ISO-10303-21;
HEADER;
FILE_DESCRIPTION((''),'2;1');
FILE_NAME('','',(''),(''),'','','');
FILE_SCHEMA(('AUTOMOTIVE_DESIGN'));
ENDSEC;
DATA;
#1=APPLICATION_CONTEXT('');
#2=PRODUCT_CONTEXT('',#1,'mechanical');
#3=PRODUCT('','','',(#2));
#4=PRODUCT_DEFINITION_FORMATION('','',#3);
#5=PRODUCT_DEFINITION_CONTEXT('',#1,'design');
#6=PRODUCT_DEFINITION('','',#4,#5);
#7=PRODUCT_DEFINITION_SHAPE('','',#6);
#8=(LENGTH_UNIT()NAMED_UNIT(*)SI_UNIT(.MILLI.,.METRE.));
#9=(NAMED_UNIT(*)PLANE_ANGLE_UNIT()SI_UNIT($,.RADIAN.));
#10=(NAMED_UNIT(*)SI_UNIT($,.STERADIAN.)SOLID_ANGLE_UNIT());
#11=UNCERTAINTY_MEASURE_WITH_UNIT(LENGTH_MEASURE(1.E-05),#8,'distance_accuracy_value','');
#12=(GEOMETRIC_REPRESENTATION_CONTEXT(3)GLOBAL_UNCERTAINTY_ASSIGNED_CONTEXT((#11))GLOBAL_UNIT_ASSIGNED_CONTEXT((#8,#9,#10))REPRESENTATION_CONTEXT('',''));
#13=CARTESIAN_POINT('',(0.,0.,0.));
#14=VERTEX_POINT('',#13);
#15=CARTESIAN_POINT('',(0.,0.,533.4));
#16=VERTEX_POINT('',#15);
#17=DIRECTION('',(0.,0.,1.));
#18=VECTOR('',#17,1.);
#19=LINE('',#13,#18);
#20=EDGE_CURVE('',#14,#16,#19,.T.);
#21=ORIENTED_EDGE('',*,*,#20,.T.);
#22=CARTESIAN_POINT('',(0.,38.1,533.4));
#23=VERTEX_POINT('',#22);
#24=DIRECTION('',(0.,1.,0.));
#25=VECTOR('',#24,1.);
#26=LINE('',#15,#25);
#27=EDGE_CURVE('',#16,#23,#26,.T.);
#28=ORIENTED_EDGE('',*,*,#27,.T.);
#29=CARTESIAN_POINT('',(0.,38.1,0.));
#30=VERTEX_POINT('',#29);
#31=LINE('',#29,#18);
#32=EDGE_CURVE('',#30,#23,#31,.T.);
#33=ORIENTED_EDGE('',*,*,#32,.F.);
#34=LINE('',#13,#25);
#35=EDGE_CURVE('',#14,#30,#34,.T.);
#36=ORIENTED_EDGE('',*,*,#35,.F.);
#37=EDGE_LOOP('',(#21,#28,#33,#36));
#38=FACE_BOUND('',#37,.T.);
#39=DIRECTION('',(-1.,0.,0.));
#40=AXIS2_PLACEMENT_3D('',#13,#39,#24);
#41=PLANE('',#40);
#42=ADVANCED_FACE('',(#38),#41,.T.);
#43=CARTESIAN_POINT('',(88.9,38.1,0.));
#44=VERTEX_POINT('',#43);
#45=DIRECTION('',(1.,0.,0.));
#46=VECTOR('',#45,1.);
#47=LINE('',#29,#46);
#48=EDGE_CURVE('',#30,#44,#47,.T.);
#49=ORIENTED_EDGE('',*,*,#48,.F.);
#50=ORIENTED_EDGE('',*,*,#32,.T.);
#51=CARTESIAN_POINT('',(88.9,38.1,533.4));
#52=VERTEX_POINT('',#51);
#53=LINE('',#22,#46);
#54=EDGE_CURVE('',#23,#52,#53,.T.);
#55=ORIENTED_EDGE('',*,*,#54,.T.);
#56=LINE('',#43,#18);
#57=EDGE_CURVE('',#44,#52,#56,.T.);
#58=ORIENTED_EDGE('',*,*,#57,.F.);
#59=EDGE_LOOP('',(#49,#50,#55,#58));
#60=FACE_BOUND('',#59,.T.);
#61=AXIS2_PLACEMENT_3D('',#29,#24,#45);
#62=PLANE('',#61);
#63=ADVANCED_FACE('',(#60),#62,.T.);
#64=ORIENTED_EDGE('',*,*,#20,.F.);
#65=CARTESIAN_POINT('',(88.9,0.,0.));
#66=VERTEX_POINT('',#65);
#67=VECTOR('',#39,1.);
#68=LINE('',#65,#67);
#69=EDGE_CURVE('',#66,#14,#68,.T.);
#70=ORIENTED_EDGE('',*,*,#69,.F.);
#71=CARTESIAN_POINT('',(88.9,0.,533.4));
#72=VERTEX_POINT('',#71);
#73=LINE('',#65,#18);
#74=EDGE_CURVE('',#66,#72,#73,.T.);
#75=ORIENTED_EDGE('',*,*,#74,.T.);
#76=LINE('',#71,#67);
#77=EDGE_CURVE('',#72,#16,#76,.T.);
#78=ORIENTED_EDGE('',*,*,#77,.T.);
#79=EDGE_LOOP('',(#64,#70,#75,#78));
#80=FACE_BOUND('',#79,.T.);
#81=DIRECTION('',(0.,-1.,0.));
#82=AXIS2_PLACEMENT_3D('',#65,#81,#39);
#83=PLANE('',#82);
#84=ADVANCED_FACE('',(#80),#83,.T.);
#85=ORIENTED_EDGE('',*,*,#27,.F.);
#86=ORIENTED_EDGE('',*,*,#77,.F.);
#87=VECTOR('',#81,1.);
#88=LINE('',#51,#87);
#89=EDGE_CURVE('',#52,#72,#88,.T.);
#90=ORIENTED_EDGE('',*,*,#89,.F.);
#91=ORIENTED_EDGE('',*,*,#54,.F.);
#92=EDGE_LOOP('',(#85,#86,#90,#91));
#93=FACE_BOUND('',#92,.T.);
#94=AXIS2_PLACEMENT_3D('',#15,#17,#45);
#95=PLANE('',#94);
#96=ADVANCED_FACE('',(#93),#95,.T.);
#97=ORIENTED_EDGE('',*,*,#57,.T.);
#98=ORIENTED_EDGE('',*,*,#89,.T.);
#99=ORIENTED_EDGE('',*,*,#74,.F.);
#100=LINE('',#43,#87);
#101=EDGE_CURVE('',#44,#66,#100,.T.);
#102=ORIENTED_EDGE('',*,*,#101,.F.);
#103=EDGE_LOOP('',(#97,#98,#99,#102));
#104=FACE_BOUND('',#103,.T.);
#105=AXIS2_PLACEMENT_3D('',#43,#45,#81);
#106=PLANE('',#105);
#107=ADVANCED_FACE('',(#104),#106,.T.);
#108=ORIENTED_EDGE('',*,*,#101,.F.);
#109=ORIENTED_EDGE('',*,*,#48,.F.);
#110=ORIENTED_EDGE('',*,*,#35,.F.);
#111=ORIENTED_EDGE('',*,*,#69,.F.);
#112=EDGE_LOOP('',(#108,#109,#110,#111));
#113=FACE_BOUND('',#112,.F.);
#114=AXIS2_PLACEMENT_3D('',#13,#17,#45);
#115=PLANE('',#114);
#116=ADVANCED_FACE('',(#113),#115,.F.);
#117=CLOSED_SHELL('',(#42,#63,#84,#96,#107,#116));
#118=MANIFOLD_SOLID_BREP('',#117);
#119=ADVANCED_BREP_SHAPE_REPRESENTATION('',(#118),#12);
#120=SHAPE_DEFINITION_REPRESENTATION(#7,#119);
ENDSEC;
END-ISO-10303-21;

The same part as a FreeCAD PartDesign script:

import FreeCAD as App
import Part
import Sketcher

V = App.Vector
Q = App.Units.Quantity

doc = App.newDocument("Part")
params = doc.addObject("Spreadsheet::Sheet", "Params")
for row, (alias, value) in enumerate([
    ("sketch1_width", "3.5 in"),
    ("sketch1_height", "1.5 in"),
    ("pad1_length", "21 in"),
], start=1):
    params.set(f"A{row}", alias)
    params.set(f"B{row}", "=" + value)
    params.setAlias(f"B{row}", alias)

body = doc.addObject("PartDesign::Body", "Body")

sketch1 = body.newObject("Sketcher::SketchObject", "Sketch")
sketch1.AttachmentSupport = (doc.getObject("XY_Plane"), [""])
sketch1.MapMode = "FlatFace"
sketch1.addGeometry(Part.LineSegment(V(0, 38, 0), V(0, 0, 0)), False)
sketch1.addGeometry(Part.LineSegment(V(0, 0, 0), V(89, 0, 0)), False)
sketch1.addGeometry(Part.LineSegment(V(89, 0, 0), V(89, 38, 0)), False)
sketch1.addGeometry(Part.LineSegment(V(89, 38, 0), V(0, 38, 0)), False)
sketch1.addConstraint(Sketcher.Constraint("Coincident", 0, 2, 1, 1))
sketch1.addConstraint(Sketcher.Constraint("Coincident", 1, 2, 2, 1))
sketch1.addConstraint(Sketcher.Constraint("Coincident", 2, 2, 3, 1))
sketch1.addConstraint(Sketcher.Constraint("Coincident", 3, 2, 0, 1))
sketch1.addConstraint(Sketcher.Constraint("Vertical", 0))
sketch1.addConstraint(Sketcher.Constraint("Horizontal", 1))
sketch1.addConstraint(Sketcher.Constraint("Vertical", 2))
sketch1.addConstraint(Sketcher.Constraint("Horizontal", 3))
sketch1.addConstraint(Sketcher.Constraint("Coincident", 0, 2, -1, 1))
sketch1.addConstraint(Sketcher.Constraint("DistanceX", 1, 1, 1, 2, Q("3.5 in")))
sketch1.addConstraint(Sketcher.Constraint("DistanceY", 0, 2, 0, 1, Q("1.5 in")))
sketch1.setExpression("Constraints[9]", "Params.sketch1_width")
sketch1.setExpression("Constraints[10]", "Params.sketch1_height")
pad1 = body.newObject("PartDesign::Pad", "Pad")
pad1.Profile = sketch1
pad1.setExpression("Length", "Params.pad1_length")

doc.recompute()
